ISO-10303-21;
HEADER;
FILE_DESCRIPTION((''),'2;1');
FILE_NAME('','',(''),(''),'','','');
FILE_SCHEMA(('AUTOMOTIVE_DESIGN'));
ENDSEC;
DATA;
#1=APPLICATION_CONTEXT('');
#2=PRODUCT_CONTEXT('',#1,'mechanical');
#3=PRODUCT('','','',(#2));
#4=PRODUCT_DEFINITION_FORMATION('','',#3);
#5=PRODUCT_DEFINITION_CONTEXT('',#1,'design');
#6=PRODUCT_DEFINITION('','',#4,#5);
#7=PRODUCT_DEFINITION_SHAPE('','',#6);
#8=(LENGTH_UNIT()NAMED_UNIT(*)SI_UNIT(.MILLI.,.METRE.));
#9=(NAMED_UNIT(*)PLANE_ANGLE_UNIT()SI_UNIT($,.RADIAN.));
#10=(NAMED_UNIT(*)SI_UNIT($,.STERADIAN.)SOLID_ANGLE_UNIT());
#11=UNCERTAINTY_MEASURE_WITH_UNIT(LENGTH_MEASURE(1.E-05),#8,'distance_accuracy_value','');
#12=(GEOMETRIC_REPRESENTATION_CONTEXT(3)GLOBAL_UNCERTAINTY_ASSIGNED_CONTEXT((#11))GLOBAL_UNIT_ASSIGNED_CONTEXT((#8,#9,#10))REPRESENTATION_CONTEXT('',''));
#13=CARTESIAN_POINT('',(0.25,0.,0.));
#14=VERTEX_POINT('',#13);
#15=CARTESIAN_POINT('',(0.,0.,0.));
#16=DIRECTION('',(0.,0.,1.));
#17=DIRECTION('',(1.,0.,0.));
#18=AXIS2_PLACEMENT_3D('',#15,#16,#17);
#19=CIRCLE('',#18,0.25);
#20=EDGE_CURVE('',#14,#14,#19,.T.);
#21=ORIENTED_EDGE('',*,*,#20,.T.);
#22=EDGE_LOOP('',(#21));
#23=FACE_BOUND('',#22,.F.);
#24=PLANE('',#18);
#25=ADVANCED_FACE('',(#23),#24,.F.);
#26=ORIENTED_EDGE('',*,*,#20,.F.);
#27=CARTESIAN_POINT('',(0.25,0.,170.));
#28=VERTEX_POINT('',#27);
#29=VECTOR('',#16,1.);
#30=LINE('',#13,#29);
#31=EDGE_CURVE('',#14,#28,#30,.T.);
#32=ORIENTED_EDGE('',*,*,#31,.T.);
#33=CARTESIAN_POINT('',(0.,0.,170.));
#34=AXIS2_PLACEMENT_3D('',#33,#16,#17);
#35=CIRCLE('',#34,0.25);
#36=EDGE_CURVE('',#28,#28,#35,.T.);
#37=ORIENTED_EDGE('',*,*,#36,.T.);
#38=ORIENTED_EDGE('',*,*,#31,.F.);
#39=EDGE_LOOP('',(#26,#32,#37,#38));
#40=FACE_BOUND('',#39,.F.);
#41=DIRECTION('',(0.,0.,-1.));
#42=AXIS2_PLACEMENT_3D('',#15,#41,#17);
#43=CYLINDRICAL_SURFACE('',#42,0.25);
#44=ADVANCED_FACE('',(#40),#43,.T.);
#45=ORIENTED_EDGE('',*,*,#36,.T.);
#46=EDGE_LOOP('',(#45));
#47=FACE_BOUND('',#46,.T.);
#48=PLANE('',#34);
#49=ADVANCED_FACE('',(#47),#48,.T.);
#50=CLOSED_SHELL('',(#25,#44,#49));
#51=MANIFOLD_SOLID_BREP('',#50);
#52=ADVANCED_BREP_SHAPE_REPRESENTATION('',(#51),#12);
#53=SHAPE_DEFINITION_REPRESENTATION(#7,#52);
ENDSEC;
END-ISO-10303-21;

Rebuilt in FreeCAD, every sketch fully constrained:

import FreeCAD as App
import Part
import Sketcher

V = App.Vector
Q = App.Units.Quantity

doc = App.newDocument("Part")
body = doc.addObject("PartDesign::Body", "Body")

sketch1 = doc.addObject("Sketcher::SketchObject", "Sketch")
body.addObject(sketch1)
sketch1.AttachmentSupport = (doc.XY_Plane, [""])
sketch1.MapMode = "FlatFace"
sketch1.addGeometry(Part.Circle(V(0, 0, 0), V(0, 0, 1), 0.25), False)
sketch1.addConstraint([
    Sketcher.Constraint("Coincident", 0, 3, -1, 1),
    Sketcher.Constraint("Diameter", 0, Q("0.5 mm")),
])
pad1 = doc.addObject("PartDesign::Pad", "Pad")
body.addObject(pad1)
pad1.Profile = sketch1
pad1.Length = 170

doc.recompute()
